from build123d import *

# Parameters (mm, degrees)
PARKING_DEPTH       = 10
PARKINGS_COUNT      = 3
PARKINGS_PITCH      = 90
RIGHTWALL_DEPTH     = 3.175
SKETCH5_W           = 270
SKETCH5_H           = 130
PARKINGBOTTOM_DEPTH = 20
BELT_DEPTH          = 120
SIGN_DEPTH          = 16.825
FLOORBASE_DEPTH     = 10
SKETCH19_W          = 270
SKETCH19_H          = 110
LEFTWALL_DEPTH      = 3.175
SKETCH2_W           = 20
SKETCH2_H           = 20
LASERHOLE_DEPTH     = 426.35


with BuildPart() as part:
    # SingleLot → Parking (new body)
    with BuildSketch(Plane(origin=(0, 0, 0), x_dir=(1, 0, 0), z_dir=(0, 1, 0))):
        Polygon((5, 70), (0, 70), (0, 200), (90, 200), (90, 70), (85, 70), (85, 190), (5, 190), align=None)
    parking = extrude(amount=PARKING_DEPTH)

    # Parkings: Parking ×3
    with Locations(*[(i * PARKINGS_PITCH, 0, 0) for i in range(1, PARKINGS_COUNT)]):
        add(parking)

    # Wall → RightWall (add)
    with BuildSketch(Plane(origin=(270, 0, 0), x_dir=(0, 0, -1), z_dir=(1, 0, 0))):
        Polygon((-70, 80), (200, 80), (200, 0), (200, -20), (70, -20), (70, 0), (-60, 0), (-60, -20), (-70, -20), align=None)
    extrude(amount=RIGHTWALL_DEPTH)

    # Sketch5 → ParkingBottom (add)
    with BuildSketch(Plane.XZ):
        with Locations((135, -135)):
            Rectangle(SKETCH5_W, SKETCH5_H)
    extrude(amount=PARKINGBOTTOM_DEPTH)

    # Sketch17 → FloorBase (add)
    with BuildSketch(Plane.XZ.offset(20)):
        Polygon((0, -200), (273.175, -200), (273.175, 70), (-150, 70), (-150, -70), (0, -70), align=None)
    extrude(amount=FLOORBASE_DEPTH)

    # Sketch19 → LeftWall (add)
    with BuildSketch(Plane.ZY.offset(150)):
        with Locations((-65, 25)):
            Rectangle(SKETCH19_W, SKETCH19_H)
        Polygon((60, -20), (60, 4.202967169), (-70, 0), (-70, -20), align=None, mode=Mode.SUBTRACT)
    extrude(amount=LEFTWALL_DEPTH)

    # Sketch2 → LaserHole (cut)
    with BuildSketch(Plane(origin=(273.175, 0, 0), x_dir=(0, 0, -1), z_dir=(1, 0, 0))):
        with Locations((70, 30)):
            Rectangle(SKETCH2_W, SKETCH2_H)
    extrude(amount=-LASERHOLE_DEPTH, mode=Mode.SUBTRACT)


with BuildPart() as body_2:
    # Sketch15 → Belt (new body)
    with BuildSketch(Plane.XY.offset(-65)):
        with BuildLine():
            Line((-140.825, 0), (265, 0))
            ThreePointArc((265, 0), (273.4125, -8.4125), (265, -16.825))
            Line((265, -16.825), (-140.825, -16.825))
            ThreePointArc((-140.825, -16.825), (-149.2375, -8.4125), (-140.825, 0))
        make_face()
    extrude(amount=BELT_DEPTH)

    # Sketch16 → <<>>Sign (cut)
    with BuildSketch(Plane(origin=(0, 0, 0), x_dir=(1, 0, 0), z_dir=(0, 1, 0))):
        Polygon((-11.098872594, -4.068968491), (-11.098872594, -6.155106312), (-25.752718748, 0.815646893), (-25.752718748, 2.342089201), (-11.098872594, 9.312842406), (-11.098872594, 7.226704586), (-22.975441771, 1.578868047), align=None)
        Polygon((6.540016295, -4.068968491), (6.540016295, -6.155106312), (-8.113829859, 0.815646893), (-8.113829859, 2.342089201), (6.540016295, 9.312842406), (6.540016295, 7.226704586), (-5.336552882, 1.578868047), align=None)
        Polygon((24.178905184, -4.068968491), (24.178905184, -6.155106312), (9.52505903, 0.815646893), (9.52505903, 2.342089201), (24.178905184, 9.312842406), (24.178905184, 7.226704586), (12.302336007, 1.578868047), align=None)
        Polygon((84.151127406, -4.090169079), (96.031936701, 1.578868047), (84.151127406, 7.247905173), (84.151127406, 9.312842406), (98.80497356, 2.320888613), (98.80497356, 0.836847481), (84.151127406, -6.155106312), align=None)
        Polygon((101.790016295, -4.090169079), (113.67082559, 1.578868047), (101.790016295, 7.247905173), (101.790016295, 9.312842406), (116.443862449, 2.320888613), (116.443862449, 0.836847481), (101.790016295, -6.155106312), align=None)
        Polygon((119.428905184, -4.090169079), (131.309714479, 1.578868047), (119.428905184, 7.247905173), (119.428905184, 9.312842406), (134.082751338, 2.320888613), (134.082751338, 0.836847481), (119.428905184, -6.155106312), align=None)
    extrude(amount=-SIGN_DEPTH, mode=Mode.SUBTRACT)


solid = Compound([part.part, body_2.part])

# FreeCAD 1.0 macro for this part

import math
import FreeCAD as App
import Part
import Sketcher

V = App.Vector
Q = App.Units.Quantity

doc = App.newDocument("Part")
body = doc.addObject("PartDesign::Body", "Body")

# Sketch on XZ plane
sketch1 = body.newObject("Sketcher::SketchObject", "Sketch")
sketch1.AttachmentSupport = (doc.getObject("XZ_Plane"), [""])
sketch1.MapMode = "FlatFace"
sketch1.addGeometry([
    Part.LineSegment(V(0, -70, 0), V(5, -70, 0)),  # 0
    Part.LineSegment(V(5, -70, 0), V(5, -190, 0)),  # 1
    Part.LineSegment(V(5, -190, 0), V(85, -190, 0)),  # 2
    Part.LineSegment(V(85, -190, 0), V(85, -70, 0)),  # 3
    Part.LineSegment(V(85, -70, 0), V(90, -70, 0)),  # 4
    Part.LineSegment(V(90, -70, 0), V(90, -200, 0)),  # 5
    Part.LineSegment(V(90, -200, 0), V(0, -200, 0)),  # 6
    Part.LineSegment(V(0, -200, 0), V(0, -70, 0)),  # 7
], False)
sketch1.addConstraint([
    Sketcher.Constraint("Coincident", 0, 2, 1, 1),
    Sketcher.Constraint("Coincident", 1, 2, 2, 1),
    Sketcher.Constraint("Coincident", 2, 2, 3, 1),
    Sketcher.Constraint("Coincident", 3, 2, 4, 1),
    Sketcher.Constraint("Coincident", 4, 2, 5, 1),
    Sketcher.Constraint("Coincident", 5, 2, 6, 1),
    Sketcher.Constraint("Coincident", 6, 2, 7, 1),
    Sketcher.Constraint("Coincident", 7, 2, 0, 1),
    Sketcher.Constraint("Horizontal", 0),
    Sketcher.Constraint("Vertical", 1),
    Sketcher.Constraint("Horizontal", 2),
    Sketcher.Constraint("Vertical", 3),
    Sketcher.Constraint("Horizontal", 4),
    Sketcher.Constraint("Vertical", 5),
    Sketcher.Constraint("Horizontal", 6),
    Sketcher.Constraint("Vertical", 7),
    Sketcher.Constraint("PointOnObject", 6, 2, -2),
    Sketcher.Constraint("Horizontal", 0, 2, 3, 2),
    Sketcher.Constraint("Equal", 0, 4),
    Sketcher.Constraint("DistanceX", 0, 1, 0, 2, Q("5 mm")),
    Sketcher.Constraint("DistanceX", 2, 1, 2, 2, Q("80 mm")),
    Sketcher.Constraint("DistanceY", 1, 2, 1, 1, Q("120 mm")),
    Sketcher.Constraint("DistanceY", 5, 2, 5, 1, Q("130 mm")),
    Sketcher.Constraint("DistanceY", 0, 2, -1, 1, Q("70 mm")),
])
pad1 = body.newObject("PartDesign::Pad", "Pad")
pad1.Profile = sketch1
pad1.Length = 10
pad1.Reversed = True
doc.recompute()

linearpattern = body.newObject("PartDesign::LinearPattern", "LinearPattern")
linearpattern.Originals = [pad1]
linearpattern.Direction = (doc.getObject("X_Axis"), [""])
linearpattern.Mode = "offset"
linearpattern.Offset = 90
linearpattern.Occurrences = 3
body.Tip = linearpattern

# Sketch on YZ plane
sketch2 = body.newObject("Sketcher::SketchObject", "Sketch001")
sketch2.AttachmentSupport = (doc.getObject("YZ_Plane"), [""])
sketch2.MapMode = "FlatFace"
sketch2.AttachmentOffset = App.Placement(V(0, 0, 270), App.Rotation())
sketch2.addGeometry([
    Part.LineSegment(V(80, -200, 0), V(80, 70, 0)),  # 0
    Part.LineSegment(V(80, 70, 0), V(-20, 70, 0)),  # 1
    Part.LineSegment(V(-20, 70, 0), V(-20, 60, 0)),  # 2
    Part.LineSegment(V(-20, 60, 0), V(0, 60, 0)),  # 3
    Part.LineSegment(V(0, 60, 0), V(0, -70, 0)),  # 4
    Part.LineSegment(V(0, -70, 0), V(-20, -70, 0)),  # 5
    Part.LineSegment(V(-20, -70, 0), V(-20, -200, 0)),  # 6
    Part.LineSegment(V(-20, -200, 0), V(80, -200, 0)),  # 7
], False)
sketch2.addConstraint([
    Sketcher.Constraint("Coincident", 0, 2, 1, 1),
    Sketcher.Constraint("Coincident", 1, 2, 2, 1),
    Sketcher.Constraint("Coincident", 2, 2, 3, 1),
    Sketcher.Constraint("Coincident", 3, 2, 4, 1),
    Sketcher.Constraint("Coincident", 4, 2, 5, 1),
    Sketcher.Constraint("Coincident", 5, 2, 6, 1),
    Sketcher.Constraint("Coincident", 6, 2, 7, 1),
    Sketcher.Constraint("Coincident", 7, 2, 0, 1),
    Sketcher.Constraint("Vertical", 0),
    Sketcher.Constraint("Horizontal", 1),
    Sketcher.Constraint("Vertical", 2),
    Sketcher.Constraint("Horizontal", 3),
    Sketcher.Constraint("Vertical", 4),
    Sketcher.Constraint("Horizontal", 5),
    Sketcher.Constraint("Vertical", 6),
    Sketcher.Constraint("Horizontal", 7),
    Sketcher.Constraint("Symmetric", 1, 2, 5, 2, -1),
    Sketcher.Constraint("PointOnObject", 3, 2, -2),
    Sketcher.Constraint("Equal", 4, 6),
    Sketcher.Constraint("DistanceX", 1, 2, 1, 1, Q("100 mm")),
    Sketcher.Constraint("DistanceX", 3, 1, 3, 2, Q("20 mm")),
    Sketcher.Constraint("DistanceY", 0, 1, 0, 2, Q("270 mm")),
    Sketcher.Constraint("DistanceY", 2, 2, 2, 1, Q("10 mm")),
])
pad2 = body.newObject("PartDesign::Pad", "Pad001")
pad2.Profile = sketch2
pad2.Length = 3.175

# Sketch on XZ plane
sketch3 = body.newObject("Sketcher::SketchObject", "Sketch002")
sketch3.AttachmentSupport = (doc.getObject("XZ_Plane"), [""])
sketch3.MapMode = "FlatFace"
sketch3.addGeometry([
    Part.LineSegment(V(0, -70, 0), V(0, -200, 0)),
    Part.LineSegment(V(0, -200, 0), V(270, -200, 0)),
    Part.LineSegment(V(270, -200, 0), V(270, -70, 0)),
    Part.LineSegment(V(270, -70, 0), V(0, -70, 0)),
], False)
sketch3.addConstraint([
    Sketcher.Constraint("Coincident", 0, 2, 1, 1),
    Sketcher.Constraint("Coincident", 1, 2, 2, 1),
    Sketcher.Constraint("Coincident", 2, 2, 3, 1),
    Sketcher.Constraint("Coincident", 3, 2, 0, 1),
    Sketcher.Constraint("Vertical", 0),
    Sketcher.Constraint("Horizontal", 1),
    Sketcher.Constraint("Vertical", 2),
    Sketcher.Constraint("Horizontal", 3),
    Sketcher.Constraint("PointOnObject", 0, 2, -2),
    Sketcher.Constraint("DistanceX", 1, 1, 1, 2, Q("270 mm")),
    Sketcher.Constraint("DistanceY", 0, 2, 0, 1, Q("130 mm")),
    Sketcher.Constraint("DistanceY", 0, 2, -1, 1, Q("200 mm")),
])
pad3 = body.newObject("PartDesign::Pad", "Pad002")
pad3.Profile = sketch3
pad3.Length = 20

# Sketch on XZ plane
sketch4 = body.newObject("Sketcher::SketchObject", "Sketch003")
sketch4.AttachmentSupport = (doc.getObject("XZ_Plane"), [""])
sketch4.MapMode = "FlatFace"
sketch4.AttachmentOffset = App.Placement(V(0, 0, 20), App.Rotation())
sketch4.addGeometry([
    Part.LineSegment(V(0, -200, 0), V(273.175, -200, 0)),  # 0
    Part.LineSegment(V(273.175, -200, 0), V(273.175, 70, 0)),  # 1
    Part.LineSegment(V(273.175, 70, 0), V(-150, 70, 0)),  # 2
    Part.LineSegment(V(-150, 70, 0), V(-150, -70, 0)),  # 3
    Part.LineSegment(V(-150, -70, 0), V(0, -70, 0)),  # 4
    Part.LineSegment(V(0, -70, 0), V(0, -200, 0)),  # 5
], False)
sketch4.addConstraint([
    Sketcher.Constraint("Coincident", 0, 2, 1, 1),
    Sketcher.Constraint("Coincident", 1, 2, 2, 1),
    Sketcher.Constraint("Coincident", 2, 2, 3, 1),
    Sketcher.Constraint("Coincident", 3, 2, 4, 1),
    Sketcher.Constraint("Coincident", 4, 2, 5, 1),
    Sketcher.Constraint("Coincident", 5, 2, 0, 1),
    Sketcher.Constraint("Horizontal", 0),
    Sketcher.Constraint("Vertical", 1),
    Sketcher.Constraint("Horizontal", 2),
    Sketcher.Constraint("Vertical", 3),
    Sketcher.Constraint("Horizontal", 4),
    Sketcher.Constraint("Vertical", 5),
    Sketcher.Constraint("PointOnObject", 4, 2, -2),
    Sketcher.Constraint("DistanceX", 4, 1, 4, 2, Q("150 mm")),
    Sketcher.Constraint("DistanceY", 1, 1, 1, 2, Q("270 mm")),
    Sketcher.Constraint("DistanceY", 3, 2, 3, 1, Q("140 mm")),
    Sketcher.Constraint("DistanceY", 0, 2, -1, 1, Q("200 mm")),
    Sketcher.Constraint("DistanceX", 0, 1, 0, 2, Q("273.175 mm")),
])
pad4 = body.newObject("PartDesign::Pad", "Pad003")
pad4.Profile = sketch4
pad4.Length = 10

# Sketch on YZ plane
sketch5 = body.newObject("Sketcher::SketchObject", "Sketch004")
sketch5.AttachmentSupport = (doc.getObject("YZ_Plane"), [""])
sketch5.MapMode = "FlatFace"
sketch5.AttachmentOffset = App.Placement(V(0, 0, -150), App.Rotation())
sketch5.addGeometry([
    Part.LineSegment(V(80, -200, 0), V(-30, -200, 0)),  # 0
    Part.LineSegment(V(-30, -200, 0), V(-30, 70, 0)),  # 1
    Part.LineSegment(V(-30, 70, 0), V(80, 70, 0)),  # 2
    Part.LineSegment(V(80, 70, 0), V(80, -200, 0)),  # 3
    Part.LineSegment(V(4.202967, 60, 0), V(-20, 60, 0)),  # 4
    Part.LineSegment(V(-20, 60, 0), V(-20, -70, 0)),  # 5
    Part.LineSegment(V(-20, -70, 0), V(0, -70, 0)),  # 6
    Part.LineSegment(V(0, -70, 0), V(4.202967, 60, 0)),  # 7
], False)
sketch5.addConstraint([
    Sketcher.Constraint("Coincident", 0, 2, 1, 1),
    Sketcher.Constraint("Coincident", 1, 2, 2, 1),
    Sketcher.Constraint("Coincident", 2, 2, 3, 1),
    Sketcher.Constraint("Coincident", 3, 2, 0, 1),
    Sketcher.Constraint("Coincident", 4, 2, 5, 1),
    Sketcher.Constraint("Coincident", 5, 2, 6, 1),
    Sketcher.Constraint("Coincident", 6, 2, 7, 1),
    Sketcher.Constraint("Coincident", 7, 2, 4, 1),
    Sketcher.Constraint("Horizontal", 0),
    Sketcher.Constraint("Vertical", 1),
    Sketcher.Constraint("Horizontal", 2),
    Sketcher.Constraint("Vertical", 3),
    Sketcher.Constraint("Horizontal", 4),
    Sketcher.Constraint("Vertical", 5),
    Sketcher.Constraint("Horizontal", 6),
    Sketcher.Constraint("PointOnObject", 6, 2, -2),
    Sketcher.Constraint("DistanceX", 0, 2, 0, 1, Q("110 mm")),
    Sketcher.Constraint("DistanceX", 6, 1, 6, 2, Q("20 mm")),
    Sketcher.Constraint("DistanceY", 1, 1, 1, 2, Q("270 mm")),
    Sketcher.Constraint("DistanceY", 5, 2, 5, 1, Q("130 mm")),
    Sketcher.Constraint("DistanceX", 0, 2, -1, 1, Q("30 mm")),
    Sketcher.Constraint("DistanceY", 0, 2, -1, 1, Q("200 mm")),
    Sketcher.Constraint("DistanceY", -1, 1, 4, 2, Q("60 mm")),
    Sketcher.Constraint("DistanceX", 4, 2, 4, 1, Q("24.202967 mm")),
])
pad5 = body.newObject("PartDesign::Pad", "Pad004")
pad5.Profile = sketch5
pad5.Length = 3.175
pad5.Reversed = True

# Sketch on YZ plane
sketch6 = body.newObject("Sketcher::SketchObject", "Sketch005")
sketch6.AttachmentSupport = (doc.getObject("YZ_Plane"), [""])
sketch6.MapMode = "FlatFace"
sketch6.AttachmentOffset = App.Placement(V(0, 0, 273.175), App.Rotation())
sketch6.addGeometry([
    Part.LineSegment(V(40, -60, 0), V(20, -60, 0)),
    Part.LineSegment(V(20, -60, 0), V(20, -80, 0)),
    Part.LineSegment(V(20, -80, 0), V(40, -80, 0)),
    Part.LineSegment(V(40, -80, 0), V(40, -60, 0)),
], False)
sketch6.addConstraint([
    Sketcher.Constraint("Coincident", 0, 2, 1, 1),
    Sketcher.Constraint("Coincident", 1, 2, 2, 1),
    Sketcher.Constraint("Coincident", 2, 2, 3, 1),
    Sketcher.Constraint("Coincident", 3, 2, 0, 1),
    Sketcher.Constraint("Horizontal", 0),
    Sketcher.Constraint("Vertical", 1),
    Sketcher.Constraint("Horizontal", 2),
    Sketcher.Constraint("Vertical", 3),
    Sketcher.Constraint("Equal", 2, 1),
    Sketcher.Constraint("DistanceX", 0, 2, 0, 1, Q("20 mm")),
    Sketcher.Constraint("DistanceX", -1, 1, 0, 2, Q("20 mm")),
    Sketcher.Constraint("DistanceY", 0, 2, -1, 1, Q("60 mm")),
])
pocket1 = body.newObject("PartDesign::Pocket", "Pocket")
pocket1.Profile = sketch6
pocket1.Length = 426.35
body2 = doc.addObject("PartDesign::Body", "Body001")

# Sketch on XY plane
sketch7 = body2.newObject("Sketcher::SketchObject", "Sketch006")
sketch7.AttachmentSupport = (doc.getObject("XY_Plane001"), [""])
sketch7.MapMode = "FlatFace"
sketch7.AttachmentOffset = App.Placement(V(0, 0, -65), App.Rotation())
sketch7.addGeometry([
    Part.LineSegment(V(265, 0, 0), V(-140.825, 0, 0)),
    Part.ArcOfCircle(Part.Circle(V(-140.825, -8.4125, 0), V(0, 0, 1), 8.4125), math.radians(90), math.radians(270)),
    Part.LineSegment(V(-140.825, -16.825, 0), V(265, -16.825, 0)),
    Part.ArcOfCircle(Part.Circle(V(265, -8.4125, 0), V(0, 0, 1), 8.4125), math.radians(-90), math.radians(90)),
], False)
sketch7.addConstraint([
    Sketcher.Constraint("Tangent", 0, 2, 1, 1),
    Sketcher.Constraint("Tangent", 1, 2, 2, 1),
    Sketcher.Constraint("Tangent", 2, 2, 3, 1),
    Sketcher.Constraint("Tangent", 3, 2, 0, 1),
    Sketcher.Constraint("Horizontal", 0),
    Sketcher.Constraint("Horizontal", 2),
    Sketcher.Constraint("PointOnObject", 0, 2, -1),
    Sketcher.Constraint("DistanceX", -1, 1, 3, 3, Q("265 mm")),
    Sketcher.Constraint("Radius", 1, Q("8.4125 mm")),
    Sketcher.Constraint("DistanceX", 0, 2, 0, 1, Q("405.825 mm")),
])
pad6 = body2.newObject("PartDesign::Pad", "Pad005")
pad6.Profile = sketch7
pad6.Length = 120

# Sketch on XZ plane
sketch8 = body2.newObject("Sketcher::SketchObject", "Sketch007")
sketch8.AttachmentSupport = (doc.getObject("XZ_Plane001"), [""])
sketch8.MapMode = "FlatFace"
sketch8.addGeometry([
    Part.LineSegment(V(-11.098873, 6.155106, 0), V(-11.098873, 4.068968, 0)),  # 0
    Part.LineSegment(V(-11.098873, 4.068968, 0), V(-22.975442, -1.578868, 0)),  # 1
    Part.LineSegment(V(-22.975442, -1.578868, 0), V(-11.098873, -7.226705, 0)),  # 2
    Part.LineSegment(V(-11.098873, -7.226705, 0), V(-11.098873, -9.312842, 0)),  # 3
    Part.LineSegment(V(-11.098873, -9.312842, 0), V(-25.752719, -2.342089, 0)),  # 4
    Part.LineSegment(V(-25.752719, -2.342089, 0), V(-25.752719, -0.815647, 0)),  # 5
    Part.LineSegment(V(-25.752719, -0.815647, 0), V(-11.098873, 6.155106, 0)),  # 6
    Part.LineSegment(V(6.540016, 6.155106, 0), V(6.540016, 4.068968, 0)),  # 7
    Part.LineSegment(V(6.540016, 4.068968, 0), V(-5.336553, -1.578868, 0)),  # 8
    Part.LineSegment(V(-5.336553, -1.578868, 0), V(6.540016, -7.226705, 0)),  # 9
    Part.LineSegment(V(6.540016, -7.226705, 0), V(6.540016, -9.312842, 0)),  # 10
    Part.LineSegment(V(6.540016, -9.312842, 0), V(-8.11383, -2.342089, 0)),  # 11
    Part.LineSegment(V(-8.11383, -2.342089, 0), V(-8.11383, -0.815647, 0)),  # 12
    Part.LineSegment(V(-8.11383, -0.815647, 0), V(6.540016, 6.155106, 0)),  # 13
    Part.LineSegment(V(24.178905, 6.155106, 0), V(24.178905, 4.068968, 0)),  # 14
    Part.LineSegment(V(24.178905, 4.068968, 0), V(12.302336, -1.578868, 0)),  # 15
    Part.LineSegment(V(12.302336, -1.578868, 0), V(24.178905, -7.226705, 0)),  # 16
    Part.LineSegment(V(24.178905, -7.226705, 0), V(24.178905, -9.312842, 0)),  # 17
    Part.LineSegment(V(24.178905, -9.312842, 0), V(9.525059, -2.342089, 0)),  # 18
    Part.LineSegment(V(9.525059, -2.342089, 0), V(9.525059, -0.815647, 0)),  # 19
    Part.LineSegment(V(9.525059, -0.815647, 0), V(24.178905, 6.155106, 0)),  # 20
    Part.LineSegment(V(96.031937, -1.578868, 0), V(84.151127, 4.090169, 0)),  # 21
    Part.LineSegment(V(84.151127, 4.090169, 0), V(84.151127, 6.155106, 0)),  # 22
    Part.LineSegment(V(84.151127, 6.155106, 0), V(98.804974, -0.836847, 0)),  # 23
    Part.LineSegment(V(98.804974, -0.836847, 0), V(98.804974, -2.320889, 0)),  # 24
    Part.LineSegment(V(98.804974, -2.320889, 0), V(84.151127, -9.312842, 0)),  # 25
    Part.LineSegment(V(84.151127, -9.312842, 0), V(84.151127, -7.247905, 0)),  # 26
    Part.LineSegment(V(84.151127, -7.247905, 0), V(96.031937, -1.578868, 0)),  # 27
    Part.LineSegment(V(113.670826, -1.578868, 0), V(101.790016, 4.090169, 0)),  # 28
    Part.LineSegment(V(101.790016, 4.090169, 0), V(101.790016, 6.155106, 0)),  # 29
    Part.LineSegment(V(101.790016, 6.155106, 0), V(116.443862, -0.836847, 0)),  # 30
    Part.LineSegment(V(116.443862, -0.836847, 0), V(116.443862, -2.320889, 0)),  # 31
    Part.LineSegment(V(116.443862, -2.320889, 0), V(101.790016, -9.312842, 0)),  # 32
    Part.LineSegment(V(101.790016, -9.312842, 0), V(101.790016, -7.247905, 0)),  # 33
    Part.LineSegment(V(101.790016, -7.247905, 0), V(113.670826, -1.578868, 0)),  # 34
    Part.LineSegment(V(131.309714, -1.578868, 0), V(119.428905, 4.090169, 0)),  # 35
    Part.LineSegment(V(119.428905, 4.090169, 0), V(119.428905, 6.155106, 0)),  # 36
    Part.LineSegment(V(119.428905, 6.155106, 0), V(134.082751, -0.836847, 0)),  # 37
    Part.LineSegment(V(134.082751, -0.836847, 0), V(134.082751, -2.320889, 0)),  # 38
    Part.LineSegment(V(134.082751, -2.320889, 0), V(119.428905, -9.312842, 0)),  # 39
    Part.LineSegment(V(119.428905, -9.312842, 0), V(119.428905, -7.247905, 0)),  # 40
    Part.LineSegment(V(119.428905, -7.247905, 0), V(131.309714, -1.578868, 0)),  # 41
], False)
sketch8.addConstraint([
    Sketcher.Constraint("Coincident", 0, 2, 1, 1),
    Sketcher.Constraint("Coincident", 1, 2, 2, 1),
    Sketcher.Constraint("Coincident", 2, 2, 3, 1),
    Sketcher.Constraint("Coincident", 3, 2, 4, 1),
    Sketcher.Constraint("Coincident", 4, 2, 5, 1),
    Sketcher.Constraint("Coincident", 5, 2, 6, 1),
    Sketcher.Constraint("Coincident", 6, 2, 0, 1),
    Sketcher.Constraint("Coincident", 7, 2, 8, 1),
    Sketcher.Constraint("Coincident", 8, 2, 9, 1),
    Sketcher.Constraint("Coincident", 9, 2, 10, 1),
    Sketcher.Constraint("Coincident", 10, 2, 11, 1),
    Sketcher.Constraint("Coincident", 11, 2, 12, 1),
    Sketcher.Constraint("Coincident", 12, 2, 13, 1),
    Sketcher.Constraint("Coincident", 13, 2, 7, 1),
    Sketcher.Constraint("Coincident", 14, 2, 15, 1),
    Sketcher.Constraint("Coincident", 15, 2, 16, 1),
    Sketcher.Constraint("Coincident", 16, 2, 17, 1),
    Sketcher.Constraint("Coincident", 17, 2, 18, 1),
    Sketcher.Constraint("Coincident", 18, 2, 19, 1),
    Sketcher.Constraint("Coincident", 19, 2, 20, 1),
    Sketcher.Constraint("Coincident", 20, 2, 14, 1),
    Sketcher.Constraint("Coincident", 21, 2, 22, 1),
    Sketcher.Constraint("Coincident", 22, 2, 23, 1),
    Sketcher.Constraint("Coincident", 23, 2, 24, 1),
    Sketcher.Constraint("Coincident", 24, 2, 25, 1),
    Sketcher.Constraint("Coincident", 25, 2, 26, 1),
    Sketcher.Constraint("Coincident", 26, 2, 27, 1),
    Sketcher.Constraint("Coincident", 27, 2, 21, 1),
    Sketcher.Constraint("Coincident", 28, 2, 29, 1),
    Sketcher.Constraint("Coincident", 29, 2, 30, 1),
    Sketcher.Constraint("Coincident", 30, 2, 31, 1),
    Sketcher.Constraint("Coincident", 31, 2, 32, 1),
    Sketcher.Constraint("Coincident", 32, 2, 33, 1),
    Sketcher.Constraint("Coincident", 33, 2, 34, 1),
    Sketcher.Constraint("Coincident", 34, 2, 28, 1),
    Sketcher.Constraint("Coincident", 35, 2, 36, 1),
    Sketcher.Constraint("Coincident", 36, 2, 37, 1),
    Sketcher.Constraint("Coincident", 37, 2, 38, 1),
    Sketcher.Constraint("Coincident", 38, 2, 39, 1),
    Sketcher.Constraint("Coincident", 39, 2, 40, 1),
    Sketcher.Constraint("Coincident", 40, 2, 41, 1),
    Sketcher.Constraint("Coincident", 41, 2, 35, 1),
    Sketcher.Constraint("Vertical", 0),
    Sketcher.Constraint("Vertical", 3),
    Sketcher.Constraint("Vertical", 5),
    Sketcher.Constraint("Vertical", 7),
    Sketcher.Constraint("Vertical", 10),
    Sketcher.Constraint("Vertical", 12),
    Sketcher.Constraint("Vertical", 14),
    Sketcher.Constraint("Vertical", 17),
    Sketcher.Constraint("Vertical", 19),
    Sketcher.Constraint("Vertical", 22),
    Sketcher.Constraint("Vertical", 24),
    Sketcher.Constraint("Vertical", 26),
    Sketcher.Constraint("Vertical", 29),
    Sketcher.Constraint("Vertical", 31),
    Sketcher.Constraint("Vertical", 33),
    Sketcher.Constraint("Vertical", 36),
    Sketcher.Constraint("Vertical", 38),
    Sketcher.Constraint("Vertical", 40),
    Sketcher.Constraint("Parallel", 1, 8),
    Sketcher.Constraint("Parallel", 2, 9),
    Sketcher.Constraint("Parallel", 4, 11),
    Sketcher.Constraint("Parallel", 6, 13),
    Sketcher.Constraint("Parallel", 8, 15),
    Sketcher.Constraint("Parallel", 9, 16),
    Sketcher.Constraint("Parallel", 11, 18),
    Sketcher.Constraint("Parallel", 13, 20),
    Sketcher.Constraint("Parallel", 21, 28),
    Sketcher.Constraint("Parallel", 23, 30),
    Sketcher.Constraint("Parallel", 25, 32),
    Sketcher.Constraint("Parallel", 27, 34),
    Sketcher.Constraint("Parallel", 28, 35),
    Sketcher.Constraint("Parallel", 30, 37),
    Sketcher.Constraint("Parallel", 32, 39),
    Sketcher.Constraint("Parallel", 34, 41),
    Sketcher.Constraint("Horizontal", 0, 2, 7, 2),
    Sketcher.Constraint("Horizontal", 1, 2, 8, 2),
    Sketcher.Constraint("Horizontal", 2, 2, 9, 2),
    Sketcher.Constraint("Horizontal", 3, 2, 10, 2),
    Sketcher.Constraint("Horizontal", 4, 2, 11, 2),
    Sketcher.Constraint("Horizontal", 5, 2, 12, 2),
    Sketcher.Constraint("Horizontal", 7, 2, 14, 2),
    Sketcher.Constraint("Horizontal", 8, 2, 15, 2),
    Sketcher.Constraint("Horizontal", 9, 2, 16, 2),
    Sketcher.Constraint("Horizontal", 10, 2, 17, 2),
    Sketcher.Constraint("Horizontal", 11, 2, 18, 2),
    Sketcher.Constraint("Horizontal", 12, 2, 19, 2),
    Sketcher.Constraint("Horizontal", 20, 2, 22, 2),
    Sketcher.Constraint("Horizontal", 17, 2, 25, 2),
    Sketcher.Constraint("Horizontal", 15, 2, 27, 2),
    Sketcher.Constraint("Horizontal", 21, 2, 28, 2),
    Sketcher.Constraint("Horizontal", 22, 2, 29, 2),
    Sketcher.Constraint("Horizontal", 23, 2, 30, 2),
    Sketcher.Constraint("Horizontal", 24, 2, 31, 2),
    Sketcher.Constraint("Horizontal", 25, 2, 32, 2),
    Sketcher.Constraint("Horizontal", 26, 2, 33, 2),
    Sketcher.Constraint("Horizontal", 28, 2, 35, 2),
    Sketcher.Constraint("Horizontal", 29, 2, 36, 2),
    Sketcher.Constraint("Horizontal", 30, 2, 37, 2),
    Sketcher.Constraint("Horizontal", 31, 2, 38, 2),
    Sketcher.Constraint("Horizontal", 32, 2, 39, 2),
    Sketcher.Constraint("Horizontal", 33, 2, 40, 2),
    Sketcher.Constraint("Vertical", 0, 2, 2, 2),
    Sketcher.Constraint("Vertical", 22, 2, 25, 2),
    Sketcher.Constraint("Equal", 0, 3),
    Sketcher.Constraint("Equal", 22, 26),
    Sketcher.Constraint("Equal", 1, 2),
    Sketcher.Constraint("Equal", 4, 6),
    Sketcher.Constraint("Equal", 23, 25),
    Sketcher.Constraint("DistanceY", 24, 2, 24, 1, Q("1.484041 mm")),
    Sketcher.Constraint("DistanceY", 14, 2, 21, 2, Q("0.021201 mm")),
    Sketcher.Constraint("Distance", 1, Q("13.151082 mm")),
    Sketcher.Constraint("Distance", 4, Q("16.227341 mm")),
    Sketcher.Constraint("Distance", 23, Q("16.23646 mm")),
    Sketcher.Constraint("DistanceY", 0, 2, 0, 1, Q("2.086138 mm")),
    Sketcher.Constraint("DistanceY", 5, 1, 5, 2, Q("1.526442 mm")),
    Sketcher.Constraint("DistanceY", -1, 1, 0, 2, Q("4.068968 mm")),
    Sketcher.Constraint("DistanceX", 1, 2, -1, 1, Q("22.975442 mm")),
    Sketcher.Constraint("DistanceY", 1, 2, -1, 1, Q("1.578868 mm")),
    Sketcher.Constraint("DistanceX", 11, 2, -1, 1, Q("8.11383 mm")),
    Sketcher.Constraint("DistanceX", -1, 1, 18, 2, Q("9.525059 mm")),
    Sketcher.Constraint("DistanceX", -1, 1, 37, 2, Q("134.082751 mm")),
    Sketcher.Constraint("DistanceX", 15, 2, 21, 2, Q("71.848791 mm")),
    Sketcher.Constraint("DistanceX", 21, 2, 27, 2, Q("11.880809 mm")),
    Sketcher.Constraint("DistanceX", 27, 2, 28, 2, Q("5.75808 mm")),
])
pocket2 = body2.newObject("PartDesign::Pocket", "Pocket001")
pocket2.Profile = sketch8
pocket2.Length = 16.825
pocket2.Reversed = True

doc.recompute()
